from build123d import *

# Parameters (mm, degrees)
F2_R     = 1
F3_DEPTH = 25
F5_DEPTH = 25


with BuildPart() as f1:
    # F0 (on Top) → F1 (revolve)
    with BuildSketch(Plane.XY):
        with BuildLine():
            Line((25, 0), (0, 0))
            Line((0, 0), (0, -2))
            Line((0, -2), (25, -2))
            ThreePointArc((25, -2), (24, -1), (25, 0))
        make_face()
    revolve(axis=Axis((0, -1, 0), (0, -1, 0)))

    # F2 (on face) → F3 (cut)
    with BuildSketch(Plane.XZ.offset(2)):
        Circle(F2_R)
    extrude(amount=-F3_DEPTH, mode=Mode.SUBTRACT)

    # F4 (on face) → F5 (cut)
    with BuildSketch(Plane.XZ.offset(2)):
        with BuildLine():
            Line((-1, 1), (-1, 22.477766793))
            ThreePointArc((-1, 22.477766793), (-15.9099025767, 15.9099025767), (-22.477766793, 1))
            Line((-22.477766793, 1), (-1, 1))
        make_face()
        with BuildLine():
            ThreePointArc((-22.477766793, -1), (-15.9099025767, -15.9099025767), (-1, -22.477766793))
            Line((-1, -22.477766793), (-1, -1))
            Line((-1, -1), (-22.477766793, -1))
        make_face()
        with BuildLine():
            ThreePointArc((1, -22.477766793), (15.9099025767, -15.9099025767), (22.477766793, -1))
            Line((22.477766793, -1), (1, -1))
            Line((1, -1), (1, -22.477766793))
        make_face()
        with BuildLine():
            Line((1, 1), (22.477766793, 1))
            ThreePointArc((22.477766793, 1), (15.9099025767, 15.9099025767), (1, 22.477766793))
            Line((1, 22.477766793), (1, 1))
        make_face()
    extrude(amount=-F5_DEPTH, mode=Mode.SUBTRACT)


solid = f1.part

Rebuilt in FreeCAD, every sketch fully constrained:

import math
import FreeCAD as App
import Part
import Sketcher
from FreeCAD import Vector
Q = App.Units.Quantity

doc = App.newDocument("Part")
body = doc.addObject("PartDesign::Body", "Body")

sketch1 = doc.addObject("Sketcher::SketchObject", "Sketch")
body.addObject(sketch1)
sketch1.AttachmentSupport = (doc.XY_Plane, [""])
sketch1.MapMode = "FlatFace"
sketch1.addGeometry([
    Part.LineSegment(Vector(25, 0, 0), Vector(0, 0, 0)),
    Part.LineSegment(Vector(0, 0, 0), Vector(0, -2, 0)),
    Part.LineSegment(Vector(0, -2, 0), Vector(25, -2, 0)),
    Part.ArcOfCircle(Part.Circle(Vector(25, -1, 0), Vector(0, 0, 1), 1), math.radians(90), math.radians(270)),
], False)
sketch1.addConstraint([
    Sketcher.Constraint("Coincident", 0, 2, 1, 1),
    Sketcher.Constraint("Coincident", 1, 2, 2, 1),
    Sketcher.Constraint("Tangent", 2, 2, 3, 2),
    Sketcher.Constraint("Tangent", 3, 1, 0, 1),
    Sketcher.Constraint("Horizontal", 0),
    Sketcher.Constraint("Vertical", 1),
    Sketcher.Constraint("Horizontal", 2),
    Sketcher.Constraint("Coincident", 0, 2, -1, 1),
    Sketcher.Constraint("Radius", 3, Q("1 mm")),
    Sketcher.Constraint("DistanceX", 0, 2, 0, 1, Q("25 mm")),
])
revolution = doc.addObject("PartDesign::Revolution", "Revolution")
body.addObject(revolution)
revolution.Profile = sketch1
revolution.ReferenceAxis = (sketch1, ["V_Axis"])
revolution.Angle = 360

sketch2 = doc.addObject("Sketcher::SketchObject", "Sketch001")
body.addObject(sketch2)
sketch2.AttachmentSupport = (doc.XZ_Plane, [""])
sketch2.MapMode = "FlatFace"
sketch2.AttachmentOffset = App.Placement(Vector(0, 0, 2), App.Rotation())
sketch2.addGeometry(Part.Circle(Vector(0, 0, 0), Vector(0, 0, 1), 1), False)
sketch2.addConstraint([
    Sketcher.Constraint("Coincident", 0, 3, -1, 1),
    Sketcher.Constraint("Diameter", 0, Q("2 mm")),
])
pocket1 = doc.addObject("PartDesign::Pocket", "Pocket")
body.addObject(pocket1)
pocket1.Profile = sketch2
pocket1.Length = 25

sketch3 = doc.addObject("Sketcher::SketchObject", "Sketch002")
body.addObject(sketch3)
sketch3.AttachmentSupport = (doc.XZ_Plane, [""])
sketch3.MapMode = "FlatFace"
sketch3.AttachmentOffset = App.Placement(Vector(0, 0, 2), App.Rotation())
sketch3.addGeometry([
    Part.LineSegment(Vector(-1, 1, 0), Vector(-1, 22, 0)),
    Part.ArcOfCircle(Part.Circle(Vector(0, 0, 0), Vector(0, 0, 1), 22), math.radians(93), math.radians(177)),
    Part.LineSegment(Vector(-22, 1, 0), Vector(-1, 1, 0)),
    Part.ArcOfCircle(Part.Circle(Vector(0, 0, 0), Vector(0, 0, 1), 22), math.radians(-177), math.radians(-93)),
    Part.LineSegment(Vector(-1, -22, 0), Vector(-1, -1, 0)),
    Part.LineSegment(Vector(-1, -1, 0), Vector(-22, -1, 0)),
    Part.ArcOfCircle(Part.Circle(Vector(0, 0, 0), Vector(0, 0, 1), 22), math.radians(-87), math.radians(-3)),
    Part.LineSegment(Vector(22, -1, 0), Vector(1, -1, 0)),
    Part.LineSegment(Vector(1, -1, 0), Vector(1, -22, 0)),
    Part.LineSegment(Vector(1, 1, 0), Vector(22, 1, 0)),
    Part.ArcOfCircle(Part.Circle(Vector(0, 0, 0), Vector(0, 0, 1), 22), math.radians(3), math.radians(87)),
    Part.LineSegment(Vector(1, 22, 0), Vector(1, 1, 0)),
], False)
sketch3.addConstraint([
    Sketcher.Constraint("Coincident", 0, 2, 1, 1),
    Sketcher.Constraint("Coincident", 1, 2, 2, 1),
    Sketcher.Constraint("Coincident", 2, 2, 0, 1),
    Sketcher.Constraint("Coincident", 3, 2, 4, 1),
    Sketcher.Constraint("Coincident", 4, 2, 5, 1),
    Sketcher.Constraint("Coincident", 5, 2, 3, 1),
    Sketcher.Constraint("Coincident", 6, 2, 7, 1),
    Sketcher.Constraint("Coincident", 7, 2, 8, 1),
    Sketcher.Constraint("Coincident", 8, 2, 6, 1),
    Sketcher.Constraint("Coincident", 9, 2, 10, 1),
    Sketcher.Constraint("Coincident", 10, 2, 11, 1),
    Sketcher.Constraint("Coincident", 11, 2, 9, 1),
    Sketcher.Constraint("Vertical", 0),
    Sketcher.Constraint("Horizontal", 2),
    Sketcher.Constraint("Vertical", 4),
    Sketcher.Constraint("Horizontal", 5),
    Sketcher.Constraint("Horizontal", 7),
    Sketcher.Constraint("Vertical", 8),
    Sketcher.Constraint("Horizontal", 9),
    Sketcher.Constraint("Vertical", 11),
    Sketcher.Constraint("Coincident", 1, 3, -1, 1),
    Sketcher.Constraint("Coincident", 3, 3, -1, 1),
    Sketcher.Constraint("Coincident", 6, 3, -1, 1),
    Sketcher.Constraint("Coincident", 10, 3, -1, 1),
    Sketcher.Constraint("Equal", 1, 3),
    Sketcher.Constraint("Equal", 3, 6),
    Sketcher.Constraint("Equal", 6, 10),
    Sketcher.Constraint("Symmetric", 2, 2, 7, 2, -1, 1),
    Sketcher.Constraint("Symmetric", 4, 2, 11, 2, -1, 1),
    Sketcher.Constraint("Symmetric", 4, 2, 7, 2, -2),
    Sketcher.Constraint("Equal", 9, 0),
    Sketcher.Constraint("Radius", 1, Q("22.5 mm")),
    Sketcher.Constraint("DistanceX", 0, 2, -1, 1, Q("1 mm")),
])
pocket2 = doc.addObject("PartDesign::Pocket", "Pocket001")
body.addObject(pocket2)
pocket2.Profile = sketch3
pocket2.Length = 25

doc.recompute()
